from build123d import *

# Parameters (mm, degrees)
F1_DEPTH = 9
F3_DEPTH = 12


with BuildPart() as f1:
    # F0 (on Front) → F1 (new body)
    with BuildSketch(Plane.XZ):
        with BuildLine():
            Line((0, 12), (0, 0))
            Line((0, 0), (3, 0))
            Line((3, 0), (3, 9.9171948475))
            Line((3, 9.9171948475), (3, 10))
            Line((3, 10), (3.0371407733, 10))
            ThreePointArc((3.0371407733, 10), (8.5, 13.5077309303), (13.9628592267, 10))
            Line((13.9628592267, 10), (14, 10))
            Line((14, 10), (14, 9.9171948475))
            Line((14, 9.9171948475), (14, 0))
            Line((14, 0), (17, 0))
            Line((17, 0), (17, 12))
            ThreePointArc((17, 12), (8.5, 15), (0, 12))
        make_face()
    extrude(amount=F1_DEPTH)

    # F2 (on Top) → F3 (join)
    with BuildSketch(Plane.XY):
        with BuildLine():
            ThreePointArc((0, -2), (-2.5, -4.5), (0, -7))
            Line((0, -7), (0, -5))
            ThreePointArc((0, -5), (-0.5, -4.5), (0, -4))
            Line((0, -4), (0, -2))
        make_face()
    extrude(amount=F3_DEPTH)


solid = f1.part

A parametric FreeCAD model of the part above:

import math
import FreeCAD as App
import Part
import Sketcher
from FreeCAD import Vector
Q = App.Units.Quantity

doc = App.newDocument("Part")
body = doc.addObject("PartDesign::Body", "Body")

sketch1 = body.newObject("Sketcher::SketchObject", "Sketch")
sketch1.AttachmentSupport = (doc.getObject("XZ_Plane"), [""])
sketch1.MapMode = "FlatFace"
sketch1.addGeometry(Part.LineSegment(Vector(0, 12, 0), Vector(0, 0, 0)), False)
sketch1.addGeometry(Part.LineSegment(Vector(0, 0, 0), Vector(3, 0, 0)), False)
sketch1.addGeometry(Part.LineSegment(Vector(3, 0, 0), Vector(3, 10, 0)), False)
sketch1.addGeometry(Part.LineSegment(Vector(3, 10, 0), Vector(3.037, 10, 0)), False)
sketch1.addGeometry(Part.ArcOfCircle(Part.Circle(Vector(8.5, 7.5, 0), Vector(0, 0, 1), 6.008), math.radians(25), math.radians(155)), False)
sketch1.addGeometry(Part.LineSegment(Vector(13.963, 10, 0), Vector(14, 10, 0)), False)
sketch1.addGeometry(Part.LineSegment(Vector(14, 10, 0), Vector(14, 0, 0)), False)
sketch1.addGeometry(Part.LineSegment(Vector(14, 0, 0), Vector(17, 0, 0)), False)
sketch1.addGeometry(Part.LineSegment(Vector(17, 0, 0), Vector(17, 12, 0)), False)
sketch1.addGeometry(Part.ArcOfCircle(Part.Circle(Vector(8.5, 1.458, 0), Vector(0, 0, 1), 13.542), math.radians(51), math.radians(129)), False)
sketch1.addConstraint(Sketcher.Constraint("Coincident", 0, 2, 1, 1))
sketch1.addConstraint(Sketcher.Constraint("Coincident", 1, 2, 2, 1))
sketch1.addConstraint(Sketcher.Constraint("Coincident", 2, 2, 3, 1))
sketch1.addConstraint(Sketcher.Constraint("Coincident", 3, 2, 4, 2))
sketch1.addConstraint(Sketcher.Constraint("Coincident", 4, 1, 5, 1))
sketch1.addConstraint(Sketcher.Constraint("Coincident", 5, 2, 6, 1))
sketch1.addConstraint(Sketcher.Constraint("Coincident", 6, 2, 7, 1))
sketch1.addConstraint(Sketcher.Constraint("Coincident", 7, 2, 8, 1))
sketch1.addConstraint(Sketcher.Constraint("Coincident", 8, 2, 9, 1))
sketch1.addConstraint(Sketcher.Constraint("Coincident", 9, 2, 0, 1))
sketch1.addConstraint(Sketcher.Constraint("Vertical", 0))
sketch1.addConstraint(Sketcher.Constraint("Horizontal", 1))
sketch1.addConstraint(Sketcher.Constraint("Vertical", 2))
sketch1.addConstraint(Sketcher.Constraint("Horizontal", 3))
sketch1.addConstraint(Sketcher.Constraint("Horizontal", 5))
sketch1.addConstraint(Sketcher.Constraint("Vertical", 6))
sketch1.addConstraint(Sketcher.Constraint("Horizontal", 7))
sketch1.addConstraint(Sketcher.Constraint("Vertical", 8))
sketch1.addConstraint(Sketcher.Constraint("Coincident", 0, 2, -1, 1))
sketch1.addConstraint(Sketcher.Constraint("PointOnObject", 6, 2, -1))
sketch1.addConstraint(Sketcher.Constraint("Horizontal", 3, 2, 4, 1))
sketch1.addConstraint(Sketcher.Constraint("Horizontal", 8, 2, 9, 2))
sketch1.addConstraint(Sketcher.Constraint("Vertical", 4, 3, 9, 3))
sketch1.addConstraint(Sketcher.Constraint("Equal", 3, 5))
sketch1.addConstraint(Sketcher.Constraint("DistanceX", 1, 1, 1, 2, Q("3 mm")))
sketch1.addConstraint(Sketcher.Constraint("DistanceY", 0, 2, 0, 1, Q("12 mm")))
sketch1.addConstraint(Sketcher.Constraint("DistanceY", 2, 1, 2, 2, Q("10 mm")))
sketch1.addConstraint(Sketcher.Constraint("DistanceX", -1, 1, 5, 2, Q("14 mm")))
sketch1.addConstraint(Sketcher.Constraint("DistanceY", -1, 1, 4, 3, Q("7.5 mm")))
sketch1.addConstraint(Sketcher.Constraint("Radius", 4, Q("6.007731 mm")))
sketch1.addConstraint(Sketcher.Constraint("Radius", 9, Q("13.541667 mm")))
pad1 = body.newObject("PartDesign::Pad", "Pad")
pad1.Profile = sketch1
pad1.Length = 9

sketch2 = body.newObject("Sketcher::SketchObject", "Sketch001")
sketch2.AttachmentSupport = (doc.getObject("XY_Plane"), [""])
sketch2.MapMode = "FlatFace"
sketch2.addGeometry(Part.ArcOfCircle(Part.Circle(Vector(0, -4.5, 0), Vector(0, 0, 1), 2.5), math.radians(90), math.radians(270)), False)
sketch2.addGeometry(Part.LineSegment(Vector(0, -7, 0), Vector(0, -5, 0)), False)
sketch2.addGeometry(Part.ArcOfCircle(Part.Circle(Vector(0, -4.5, 0), Vector(0, 0, 1), 0.5), math.radians(90), math.radians(270)), False)
sketch2.addGeometry(Part.LineSegment(Vector(0, -4, 0), Vector(0, -2, 0)), False)
sketch2.addConstraint(Sketcher.Constraint("Coincident", 0, 2, 1, 1))
sketch2.addConstraint(Sketcher.Constraint("Coincident", 1, 2, 2, 2))
sketch2.addConstraint(Sketcher.Constraint("Coincident", 2, 1, 3, 1))
sketch2.addConstraint(Sketcher.Constraint("Coincident", 3, 2, 0, 1))
sketch2.addConstraint(Sketcher.Constraint("Vertical", 1))
sketch2.addConstraint(Sketcher.Constraint("Vertical", 3))
sketch2.addConstraint(Sketcher.Constraint("Coincident", 2, 3, 0, 3))
sketch2.addConstraint(Sketcher.Constraint("PointOnObject", 0, 3, -2))
sketch2.addConstraint(Sketcher.Constraint("PointOnObject", 0, 2, -2))
sketch2.addConstraint(Sketcher.Constraint("PointOnObject", 2, 1, -2))
sketch2.addConstraint(Sketcher.Constraint("Radius", 0, Q("2.5 mm")))
sketch2.addConstraint(Sketcher.Constraint("Radius", 2, Q("0.5 mm")))
sketch2.addConstraint(Sketcher.Constraint("DistanceY", 0, 2, -1, 1, Q("7 mm")))
pad2 = body.newObject("PartDesign::Pad", "Pad001")
pad2.Profile = sketch2
pad2.Length = 12

doc.recompute()
